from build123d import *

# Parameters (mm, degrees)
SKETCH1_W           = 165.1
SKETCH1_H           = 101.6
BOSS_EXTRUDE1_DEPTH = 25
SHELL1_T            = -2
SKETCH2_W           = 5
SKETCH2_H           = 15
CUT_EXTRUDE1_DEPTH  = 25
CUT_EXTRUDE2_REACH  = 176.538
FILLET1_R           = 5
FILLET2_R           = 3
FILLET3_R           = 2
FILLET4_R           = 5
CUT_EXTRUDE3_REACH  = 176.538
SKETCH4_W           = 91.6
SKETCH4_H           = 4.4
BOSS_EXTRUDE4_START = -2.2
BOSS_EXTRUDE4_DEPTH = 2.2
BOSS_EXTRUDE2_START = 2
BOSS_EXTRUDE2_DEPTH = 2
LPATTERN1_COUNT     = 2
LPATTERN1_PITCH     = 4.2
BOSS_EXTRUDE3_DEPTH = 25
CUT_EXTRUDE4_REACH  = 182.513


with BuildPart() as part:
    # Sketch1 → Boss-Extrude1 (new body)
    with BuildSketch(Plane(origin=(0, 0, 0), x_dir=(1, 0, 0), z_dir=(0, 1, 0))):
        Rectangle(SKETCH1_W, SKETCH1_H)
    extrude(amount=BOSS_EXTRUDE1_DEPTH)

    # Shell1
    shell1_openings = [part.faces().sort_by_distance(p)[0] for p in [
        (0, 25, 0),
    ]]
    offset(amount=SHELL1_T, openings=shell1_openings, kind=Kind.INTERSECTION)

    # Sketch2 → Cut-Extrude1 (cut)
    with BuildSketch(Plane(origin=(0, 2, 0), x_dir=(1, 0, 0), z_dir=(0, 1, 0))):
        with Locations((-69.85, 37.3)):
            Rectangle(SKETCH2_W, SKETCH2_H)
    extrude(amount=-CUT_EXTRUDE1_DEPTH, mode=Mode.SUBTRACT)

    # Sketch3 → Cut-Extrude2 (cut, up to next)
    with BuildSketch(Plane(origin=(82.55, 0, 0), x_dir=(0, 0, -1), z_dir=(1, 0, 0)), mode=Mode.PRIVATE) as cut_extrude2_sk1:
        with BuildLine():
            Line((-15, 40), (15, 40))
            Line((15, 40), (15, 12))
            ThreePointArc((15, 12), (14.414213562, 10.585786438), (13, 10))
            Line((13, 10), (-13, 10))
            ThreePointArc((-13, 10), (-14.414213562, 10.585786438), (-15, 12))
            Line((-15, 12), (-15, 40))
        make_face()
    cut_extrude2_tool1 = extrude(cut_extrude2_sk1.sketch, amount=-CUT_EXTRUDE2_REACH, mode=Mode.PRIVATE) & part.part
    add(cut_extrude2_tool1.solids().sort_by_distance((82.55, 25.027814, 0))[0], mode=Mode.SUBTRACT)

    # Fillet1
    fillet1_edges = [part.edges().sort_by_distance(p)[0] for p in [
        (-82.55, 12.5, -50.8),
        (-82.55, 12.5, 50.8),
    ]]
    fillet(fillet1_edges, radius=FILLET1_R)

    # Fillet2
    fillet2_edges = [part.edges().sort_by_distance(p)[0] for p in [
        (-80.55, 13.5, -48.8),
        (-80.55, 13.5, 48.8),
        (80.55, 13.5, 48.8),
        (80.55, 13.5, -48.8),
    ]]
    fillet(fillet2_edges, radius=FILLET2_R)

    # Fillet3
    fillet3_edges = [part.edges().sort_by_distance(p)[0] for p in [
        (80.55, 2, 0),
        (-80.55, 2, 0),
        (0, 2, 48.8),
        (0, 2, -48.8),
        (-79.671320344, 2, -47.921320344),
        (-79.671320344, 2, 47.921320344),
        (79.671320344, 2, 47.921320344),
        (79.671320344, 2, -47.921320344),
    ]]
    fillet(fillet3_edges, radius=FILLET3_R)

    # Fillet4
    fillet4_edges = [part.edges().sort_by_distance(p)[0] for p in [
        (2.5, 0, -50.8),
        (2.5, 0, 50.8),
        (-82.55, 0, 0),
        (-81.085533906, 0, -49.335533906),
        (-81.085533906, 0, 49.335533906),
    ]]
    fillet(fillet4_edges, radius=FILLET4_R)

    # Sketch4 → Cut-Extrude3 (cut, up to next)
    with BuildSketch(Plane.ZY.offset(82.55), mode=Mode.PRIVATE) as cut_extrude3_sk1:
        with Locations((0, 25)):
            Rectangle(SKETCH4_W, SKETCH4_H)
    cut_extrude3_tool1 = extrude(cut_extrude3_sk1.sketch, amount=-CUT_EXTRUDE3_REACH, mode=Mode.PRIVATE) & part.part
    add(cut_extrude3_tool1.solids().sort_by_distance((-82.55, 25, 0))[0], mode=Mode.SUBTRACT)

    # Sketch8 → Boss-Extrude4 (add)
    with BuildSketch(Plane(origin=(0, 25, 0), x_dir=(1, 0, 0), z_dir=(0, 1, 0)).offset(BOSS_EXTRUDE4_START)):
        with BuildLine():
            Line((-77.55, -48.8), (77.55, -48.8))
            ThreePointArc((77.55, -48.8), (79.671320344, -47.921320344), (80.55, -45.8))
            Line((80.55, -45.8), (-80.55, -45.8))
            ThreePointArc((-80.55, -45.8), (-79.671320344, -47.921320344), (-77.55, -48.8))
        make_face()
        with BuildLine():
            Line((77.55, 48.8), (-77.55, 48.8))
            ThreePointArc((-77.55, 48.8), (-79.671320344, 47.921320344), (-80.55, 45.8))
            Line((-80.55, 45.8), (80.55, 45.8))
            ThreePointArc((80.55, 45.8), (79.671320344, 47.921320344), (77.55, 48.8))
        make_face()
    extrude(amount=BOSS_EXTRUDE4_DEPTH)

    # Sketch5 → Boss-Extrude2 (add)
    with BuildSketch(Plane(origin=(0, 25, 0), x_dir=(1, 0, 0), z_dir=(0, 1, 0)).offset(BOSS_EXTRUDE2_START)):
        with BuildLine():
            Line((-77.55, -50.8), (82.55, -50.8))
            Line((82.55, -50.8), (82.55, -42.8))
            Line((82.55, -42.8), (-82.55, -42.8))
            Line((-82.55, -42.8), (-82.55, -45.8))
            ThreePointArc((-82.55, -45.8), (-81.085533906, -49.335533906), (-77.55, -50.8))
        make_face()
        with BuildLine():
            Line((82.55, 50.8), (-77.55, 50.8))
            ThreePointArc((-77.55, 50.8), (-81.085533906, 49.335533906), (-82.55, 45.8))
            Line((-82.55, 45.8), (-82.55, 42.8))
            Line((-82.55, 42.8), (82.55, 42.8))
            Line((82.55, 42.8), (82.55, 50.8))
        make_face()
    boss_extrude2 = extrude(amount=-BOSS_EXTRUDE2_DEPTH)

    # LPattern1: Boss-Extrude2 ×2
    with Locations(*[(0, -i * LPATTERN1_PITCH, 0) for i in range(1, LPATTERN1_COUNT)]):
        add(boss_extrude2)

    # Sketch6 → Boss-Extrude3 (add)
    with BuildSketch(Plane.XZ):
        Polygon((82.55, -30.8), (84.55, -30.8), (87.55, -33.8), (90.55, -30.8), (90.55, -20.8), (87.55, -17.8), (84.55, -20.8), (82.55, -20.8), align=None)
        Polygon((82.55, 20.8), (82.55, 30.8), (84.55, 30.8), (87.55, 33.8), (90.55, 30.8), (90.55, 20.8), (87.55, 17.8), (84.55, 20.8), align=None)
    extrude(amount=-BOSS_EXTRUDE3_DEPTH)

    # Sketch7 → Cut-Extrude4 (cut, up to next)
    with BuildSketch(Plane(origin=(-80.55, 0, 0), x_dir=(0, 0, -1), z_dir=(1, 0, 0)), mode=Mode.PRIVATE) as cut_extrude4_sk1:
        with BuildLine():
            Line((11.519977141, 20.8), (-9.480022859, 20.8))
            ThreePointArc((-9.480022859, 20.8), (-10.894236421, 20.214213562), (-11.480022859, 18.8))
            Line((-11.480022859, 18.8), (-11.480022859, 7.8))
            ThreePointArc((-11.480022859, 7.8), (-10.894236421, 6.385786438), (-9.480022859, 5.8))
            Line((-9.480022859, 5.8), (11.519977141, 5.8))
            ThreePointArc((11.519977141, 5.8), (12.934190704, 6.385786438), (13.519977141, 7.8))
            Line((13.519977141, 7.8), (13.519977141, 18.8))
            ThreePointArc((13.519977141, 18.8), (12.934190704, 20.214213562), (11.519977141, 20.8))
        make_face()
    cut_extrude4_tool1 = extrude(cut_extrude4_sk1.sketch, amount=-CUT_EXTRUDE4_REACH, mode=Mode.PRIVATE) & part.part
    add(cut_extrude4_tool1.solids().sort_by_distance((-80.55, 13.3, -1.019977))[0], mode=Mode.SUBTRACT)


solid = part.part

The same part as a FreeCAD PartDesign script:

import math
import FreeCAD as App
import Part
import Sketcher
from FreeCAD import Vector


def edges_at(feature, points):
    """Names of the edges that pass closest to the given points."""
    edges = feature.Shape.Edges
    near = lambda p: min(range(len(edges)), key=lambda i: edges[i].distToShape(Part.Vertex(*p))[0])
    return sorted({f"Edge{near(p) + 1}" for p in points})


def faces_at(feature, points):
    """Names of the faces that lie closest to the given points."""
    faces = feature.Shape.Faces
    near = lambda p: min(range(len(faces)), key=lambda i: faces[i].distToShape(Part.Vertex(*p))[0])
    return sorted({f"Face{near(p) + 1}" for p in points})


def add_polygon(sketch, points):
    """Adds a closed chain of lines whose ends are joined by coincident constraints."""
    first, n = sketch.GeometryCount, len(points)
    for a, b in zip(points, points[1:] + points[:1]):
        sketch.addGeometry(Part.LineSegment(App.Vector(*a, 0), App.Vector(*b, 0)), False)
    for i in range(n):
        sketch.addConstraint(Sketcher.Constraint("Coincident", first + i, 2, first + (i + 1) % n, 1))

doc = App.newDocument("Part")
body = doc.addObject("PartDesign::Body", "Body")

# Sketch on XZ plane
sketch1 = body.newObject("Sketcher::SketchObject", "Sketch")
sketch1.AttachmentSupport = (doc.getObject("XZ_Plane"), [""])
sketch1.MapMode = "FlatFace"
add_polygon(sketch1, [(-82.55, -50.8), (-82.55, 50.8), (82.55, 50.8), (82.55, -50.8)])  # lines 0-3
sketch1.addConstraint(Sketcher.Constraint("Vertical", 0))
sketch1.addConstraint(Sketcher.Constraint("Horizontal", 1))
sketch1.addConstraint(Sketcher.Constraint("Vertical", 2))
sketch1.addConstraint(Sketcher.Constraint("Horizontal", 3))
sketch1.addConstraint(Sketcher.Constraint("Symmetric", 0, 2, 2, 2, -1, 1))
sketch1.addConstraint(Sketcher.Constraint("DistanceX", 1, 1, 1, 2, 165.1))
sketch1.addConstraint(Sketcher.Constraint("DistanceY", 0, 1, 0, 2, 101.6))
pad1 = body.newObject("PartDesign::Pad", "Pad")
pad1.Profile = sketch1
pad1.Length = 25
pad1.Reversed = True
doc.recompute()

thickness = body.newObject("PartDesign::Thickness", "Thickness")
thickness.Base = (pad1, faces_at(pad1, [(0, 25, 0)]))
thickness.Value = 2
thickness.Reversed = True
thickness.Join = "Intersection"

# Sketch on XZ plane
sketch2 = body.newObject("Sketcher::SketchObject", "Sketch001")
sketch2.AttachmentSupport = (doc.getObject("XZ_Plane"), [""])
sketch2.MapMode = "FlatFace"
sketch2.AttachmentOffset = App.Placement(Vector(0, 0, -2), App.Rotation())
add_polygon(sketch2, [(-72.35, -44.8), (-72.35, -29.8), (-67.35, -29.8), (-67.35, -44.8)])  # lines 0-3
sketch2.addConstraint(Sketcher.Constraint("Vertical", 0))
sketch2.addConstraint(Sketcher.Constraint("Horizontal", 1))
sketch2.addConstraint(Sketcher.Constraint("Vertical", 2))
sketch2.addConstraint(Sketcher.Constraint("Horizontal", 3))
sketch2.addConstraint(Sketcher.Constraint("DistanceX", 1, 1, 1, 2, 5.0))
sketch2.addConstraint(Sketcher.Constraint("DistanceY", 0, 1, 0, 2, 15.0))
sketch2.addConstraint(Sketcher.Constraint("DistanceY", 0, 2, -1, 1, 29.8))
sketch2.addConstraint(Sketcher.Constraint("DistanceX", 0, 2, -1, 1, 72.35))
pocket1 = body.newObject("PartDesign::Pocket", "Pocket")
pocket1.Profile = sketch2
pocket1.Length = 25
pocket1.Reversed = True

# Sketch on YZ plane
sketch3 = body.newObject("Sketcher::SketchObject", "Sketch002")
sketch3.AttachmentSupport = (doc.getObject("YZ_Plane"), [""])
sketch3.MapMode = "FlatFace"
sketch3.AttachmentOffset = App.Placement(Vector(0, 0, 82.55), App.Rotation())
sketch3.addGeometry(Part.LineSegment(Vector(40, -15, 0), Vector(40, 15, 0)), False)
sketch3.addGeometry(Part.LineSegment(Vector(40, 15, 0), Vector(12, 15, 0)), False)
sketch3.addGeometry(Part.ArcOfCircle(Part.Circle(Vector(12, 13, 0), Vector(0, 0, 1), 2), math.radians(90), math.radians(180)), False)
sketch3.addGeometry(Part.LineSegment(Vector(10, 13, 0), Vector(10, -13, 0)), False)
sketch3.addGeometry(Part.ArcOfCircle(Part.Circle(Vector(12, -13, 0), Vector(0, 0, 1), 2), math.radians(-180), math.radians(-90)), False)
sketch3.addGeometry(Part.LineSegment(Vector(12, -15, 0), Vector(40, -15, 0)), False)
sketch3.addConstraint(Sketcher.Constraint("Coincident", 0, 2, 1, 1))
sketch3.addConstraint(Sketcher.Constraint("Tangent", 1, 2, 2, 1))
sketch3.addConstraint(Sketcher.Constraint("Tangent", 2, 2, 3, 1))
sketch3.addConstraint(Sketcher.Constraint("Tangent", 3, 2, 4, 1))
sketch3.addConstraint(Sketcher.Constraint("Tangent", 4, 2, 5, 1))
sketch3.addConstraint(Sketcher.Constraint("Coincident", 5, 2, 0, 1))
sketch3.addConstraint(Sketcher.Constraint("Vertical", 0))
sketch3.addConstraint(Sketcher.Constraint("Horizontal", 1))
sketch3.addConstraint(Sketcher.Constraint("Vertical", 3))
sketch3.addConstraint(Sketcher.Constraint("Horizontal", 5))
sketch3.addConstraint(Sketcher.Constraint("Equal", 2, 4))
sketch3.addConstraint(Sketcher.Constraint("Radius", 2, 2.0))
sketch3.addConstraint(Sketcher.Constraint("DistanceX", 1, 2, 1, 1, 28.0))
sketch3.addConstraint(Sketcher.Constraint("DistanceY", 0, 1, 0, 2, 30.0))
sketch3.addConstraint(Sketcher.Constraint("DistanceX", -1, 1, 2, 3, 12.0))
sketch3.addConstraint(Sketcher.Constraint("DistanceY", -1, 1, 2, 3, 13.0))
pocket2 = body.newObject("PartDesign::Pocket", "Pocket001")
pocket2.Profile = sketch3
pocket2.Length = 2
doc.recompute()

fillet = body.newObject("PartDesign::Fillet", "Fillet")
fillet.Base = (pocket2, edges_at(pocket2, [(-82.55, 12.5, -50.8), (-82.55, 12.5, 50.8)]))
fillet.Radius = 5
doc.recompute()

fillet2 = body.newObject("PartDesign::Fillet", "Fillet001")
fillet2.Base = (fillet, edges_at(fillet, [
    (-80.55, 13.5, -48.8),
    (-80.55, 13.5, 48.8),
    (80.55, 13.5, 48.8),
    (80.55, 13.5, -48.8),
]))
fillet2.Radius = 3
doc.recompute()

fillet3 = body.newObject("PartDesign::Fillet", "Fillet002")
fillet3.Base = (fillet2, edges_at(fillet2, [
    (80.55, 2, 0),
    (-80.55, 2, 0),
    (0, 2, 48.8),
    (0, 2, -48.8),
    (-79.671, 2, -47.921),
    (-79.671, 2, 47.921),
    (79.671, 2, 47.921),
    (79.671, 2, -47.921),
]))
fillet3.Radius = 2
doc.recompute()

fillet4 = body.newObject("PartDesign::Fillet", "Fillet003")
fillet4.Base = (fillet3, edges_at(fillet3, [
    (2.5, 0, -50.8),
    (2.5, 0, 50.8),
    (-82.55, 0, 0),
    (-81.086, 0, -49.336),
    (-81.086, 0, 49.336),
]))
fillet4.Radius = 5

# Sketch on YZ plane
sketch4 = body.newObject("Sketcher::SketchObject", "Sketch003")
sketch4.AttachmentSupport = (doc.getObject("YZ_Plane"), [""])
sketch4.MapMode = "FlatFace"
sketch4.AttachmentOffset = App.Placement(Vector(0, 0, -82.55), App.Rotation())
add_polygon(sketch4, [(27.2, -45.8), (22.8, -45.8), (22.8, 45.8), (27.2, 45.8)])  # lines 0-3
sketch4.addConstraint(Sketcher.Constraint("Horizontal", 0))
sketch4.addConstraint(Sketcher.Constraint("Vertical", 1))
sketch4.addConstraint(Sketcher.Constraint("Horizontal", 2))
sketch4.addConstraint(Sketcher.Constraint("Vertical", 3))
sketch4.addConstraint(Sketcher.Constraint("DistanceX", 0, 2, 0, 1, 4.4))
sketch4.addConstraint(Sketcher.Constraint("DistanceY", 1, 1, 1, 2, 91.6))
sketch4.addConstraint(Sketcher.Constraint("DistanceX", -1, 1, 0, 2, 22.8))
sketch4.addConstraint(Sketcher.Constraint("DistanceY", 0, 2, -1, 1, 45.8))
pocket3 = body.newObject("PartDesign::Pocket", "Pocket002")
pocket3.Profile = sketch4
pocket3.Type = "UpToFirst"
pocket3.Reversed = True

# Sketch on XZ plane
sketch5 = body.newObject("Sketcher::SketchObject", "Sketch004")
sketch5.AttachmentSupport = (doc.getObject("XZ_Plane"), [""])
sketch5.MapMode = "FlatFace"
sketch5.AttachmentOffset = App.Placement(Vector(0, 0, -22.8), App.Rotation())
sketch5.addGeometry(Part.LineSegment(Vector(-77.55, 48.8, 0), Vector(77.55, 48.8, 0)), False)
sketch5.addGeometry(Part.ArcOfCircle(Part.Circle(Vector(77.55, 45.8, 0), Vector(0, 0, 1), 3), math.radians(0), math.radians(90)), False)
sketch5.addGeometry(Part.LineSegment(Vector(80.55, 45.8, 0), Vector(-80.55, 45.8, 0)), False)
sketch5.addGeometry(Part.ArcOfCircle(Part.Circle(Vector(-77.55, 45.8, 0), Vector(0, 0, 1), 3), math.radians(90), math.radians(180)), False)
sketch5.addGeometry(Part.LineSegment(Vector(77.55, -48.8, 0), Vector(-77.55, -48.8, 0)), False)
sketch5.addGeometry(Part.ArcOfCircle(Part.Circle(Vector(-77.55, -45.8, 0), Vector(0, 0, 1), 3), math.radians(180), math.radians(270)), False)
sketch5.addGeometry(Part.LineSegment(Vector(-80.55, -45.8, 0), Vector(80.55, -45.8, 0)), False)
sketch5.addGeometry(Part.ArcOfCircle(Part.Circle(Vector(77.55, -45.8, 0), Vector(0, 0, 1), 3), math.radians(-90), math.radians(0)), False)
sketch5.addConstraint(Sketcher.Constraint("Tangent", 0, 2, 1, 2))
sketch5.addConstraint(Sketcher.Constraint("Coincident", 1, 1, 2, 1))
sketch5.addConstraint(Sketcher.Constraint("Coincident", 2, 2, 3, 2))
sketch5.addConstraint(Sketcher.Constraint("Tangent", 3, 1, 0, 1))
sketch5.addConstraint(Sketcher.Constraint("Tangent", 4, 2, 5, 2))
sketch5.addConstraint(Sketcher.Constraint("Coincident", 5, 1, 6, 1))
sketch5.addConstraint(Sketcher.Constraint("Coincident", 6, 2, 7, 2))
sketch5.addConstraint(Sketcher.Constraint("Tangent", 7, 1, 4, 1))
sketch5.addConstraint(Sketcher.Constraint("Horizontal", 0))
sketch5.addConstraint(Sketcher.Constraint("Horizontal", 2))
sketch5.addConstraint(Sketcher.Constraint("Horizontal", 4))
sketch5.addConstraint(Sketcher.Constraint("Horizontal", 6))
sketch5.addConstraint(Sketcher.Constraint("Equal", 1, 3))
sketch5.addConstraint(Sketcher.Constraint("Equal", 3, 5))
sketch5.addConstraint(Sketcher.Constraint("Equal", 5, 7))
sketch5.addConstraint(Sketcher.Constraint("Symmetric", 1, 3, 5, 3, -1, 1))
sketch5.addConstraint(Sketcher.Constraint("Symmetric", 2, 2, 6, 2, -1, 1))
sketch5.addConstraint(Sketcher.Constraint("Horizontal", 3, 3, 1, 1))
sketch5.addConstraint(Sketcher.Constraint("Vertical", 3, 3, 5, 3))
sketch5.addConstraint(Sketcher.Constraint("Radius", 1, 3.0))
sketch5.addConstraint(Sketcher.Constraint("DistanceX", 0, 1, 0, 2, 155.1))
sketch5.addConstraint(Sketcher.Constraint("DistanceY", -1, 1, 1, 3, 45.8))
pad2 = body.newObject("PartDesign::Pad", "Pad001")
pad2.Profile = sketch5
pad2.Length = 2.2
pad2.Reversed = True

# Sketch on XZ plane
sketch6 = body.newObject("Sketcher::SketchObject", "Sketch005")
sketch6.AttachmentSupport = (doc.getObject("XZ_Plane"), [""])
sketch6.MapMode = "FlatFace"
sketch6.AttachmentOffset = App.Placement(Vector(0, 0, -27), App.Rotation())
sketch6.addGeometry(Part.LineSegment(Vector(-77.55, 50.8, 0), Vector(82.55, 50.8, 0)), False)
sketch6.addGeometry(Part.LineSegment(Vector(82.55, 50.8, 0), Vector(82.55, 42.8, 0)), False)
sketch6.addGeometry(Part.LineSegment(Vector(82.55, 42.8, 0), Vector(-82.55, 42.8, 0)), False)
sketch6.addGeometry(Part.LineSegment(Vector(-82.55, 42.8, 0), Vector(-82.55, 45.8, 0)), False)
sketch6.addGeometry(Part.ArcOfCircle(Part.Circle(Vector(-77.55, 45.8, 0), Vector(0, 0, 1), 5), math.radians(90), math.radians(180)), False)
sketch6.addGeometry(Part.LineSegment(Vector(82.55, -50.8, 0), Vector(-77.55, -50.8, 0)), False)
sketch6.addGeometry(Part.ArcOfCircle(Part.Circle(Vector(-77.55, -45.8, 0), Vector(0, 0, 1), 5), math.radians(180), math.radians(270)), False)
sketch6.addGeometry(Part.LineSegment(Vector(-82.55, -45.8, 0), Vector(-82.55, -42.8, 0)), False)
sketch6.addGeometry(Part.LineSegment(Vector(-82.55, -42.8, 0), Vector(82.55, -42.8, 0)), False)
sketch6.addGeometry(Part.LineSegment(Vector(82.55, -42.8, 0), Vector(82.55, -50.8, 0)), False)
sketch6.addConstraint(Sketcher.Constraint("Coincident", 0, 2, 1, 1))
sketch6.addConstraint(Sketcher.Constraint("Coincident", 1, 2, 2, 1))
sketch6.addConstraint(Sketcher.Constraint("Coincident", 2, 2, 3, 1))
sketch6.addConstraint(Sketcher.Constraint("Tangent", 3, 2, 4, 2))
sketch6.addConstraint(Sketcher.Constraint("Tangent", 4, 1, 0, 1))
sketch6.addConstraint(Sketcher.Constraint("Tangent", 5, 2, 6, 2))
sketch6.addConstraint(Sketcher.Constraint("Tangent", 6, 1, 7, 1))
sketch6.addConstraint(Sketcher.Constraint("Coincident", 7, 2, 8, 1))
sketch6.addConstraint(Sketcher.Constraint("Coincident", 8, 2, 9, 1))
sketch6.addConstraint(Sketcher.Constraint("Coincident", 9, 2, 5, 1))
sketch6.addConstraint(Sketcher.Constraint("Horizontal", 0))
sketch6.addConstraint(Sketcher.Constraint("Vertical", 1))
sketch6.addConstraint(Sketcher.Constraint("Horizontal", 2))
sketch6.addConstraint(Sketcher.Constraint("Vertical", 3))
sketch6.addConstraint(Sketcher.Constraint("Horizontal", 5))
sketch6.addConstraint(Sketcher.Constraint("Vertical", 7))
sketch6.addConstraint(Sketcher.Constraint("Horizontal", 8))
sketch6.addConstraint(Sketcher.Constraint("Vertical", 9))
sketch6.addConstraint(Sketcher.Constraint("Equal", 4, 6))
sketch6.addConstraint(Sketcher.Constraint("Symmetric", 1, 2, 7, 2, -1, 1))
sketch6.addConstraint(Sketcher.Constraint("Symmetric", 4, 3, 6, 3, -1))
sketch6.addConstraint(Sketcher.Constraint("Vertical", 1, 2, 8, 2))
sketch6.addConstraint(Sketcher.Constraint("Radius", 4, 5.0))
sketch6.addConstraint(Sketcher.Constraint("DistanceY", 1, 2, 1, 1, 8.0))
sketch6.addConstraint(Sketcher.Constraint("DistanceX", 0, 1, 0, 2, 160.1))
sketch6.addConstraint(Sketcher.Constraint("DistanceY", -1, 1, 4, 3, 45.8))
pad3 = body.newObject("PartDesign::Pad", "Pad002")
pad3.Profile = sketch6
pad3.Length = 2
doc.recompute()

linearpattern = body.newObject("PartDesign::LinearPattern", "LinearPattern")
linearpattern.Originals = [pad3]
linearpattern.Direction = (doc.getObject("Y_Axis"), [""])
linearpattern.Mode = "offset"
linearpattern.Offset = 4.2
linearpattern.Occurrences = 2
linearpattern.Reversed = True
body.Tip = linearpattern

# Sketch on XZ plane
sketch7 = body.newObject("Sketcher::SketchObject", "Sketch006")
sketch7.AttachmentSupport = (doc.getObject("XZ_Plane"), [""])
sketch7.MapMode = "FlatFace"
add_polygon(sketch7, [(82.55, -30.8), (84.55, -30.8), (87.55, -33.8), (90.55, -30.8), (90.55, -20.8), (87.55, -17.8), (84.55, -20.8), (82.55, -20.8)])  # lines 0-7
add_polygon(sketch7, [(82.55, 30.8), (82.55, 20.8), (84.55, 20.8), (87.55, 17.8), (90.55, 20.8), (90.55, 30.8), (87.55, 33.8), (84.55, 30.8)])  # lines 8-15
sketch7.addConstraint(Sketcher.Constraint("Horizontal", 0))
sketch7.addConstraint(Sketcher.Constraint("Vertical", 3))
sketch7.addConstraint(Sketcher.Constraint("Horizontal", 6))
sketch7.addConstraint(Sketcher.Constraint("Vertical", 7))
sketch7.addConstraint(Sketcher.Constraint("Vertical", 8))
sketch7.addConstraint(Sketcher.Constraint("Horizontal", 9))
sketch7.addConstraint(Sketcher.Constraint("Vertical", 12))
sketch7.addConstraint(Sketcher.Constraint("Horizontal", 15))
sketch7.addConstraint(Sketcher.Constraint("Symmetric", 6, 2, 8, 2, -1))
sketch7.addConstraint(Sketcher.Constraint("Symmetric", 4, 2, 10, 2, -1))
sketch7.addConstraint(Sketcher.Constraint("Symmetric", 3, 2, 11, 2, -1))
sketch7.addConstraint(Sketcher.Constraint("Symmetric", 1, 2, 13, 2, -1))
sketch7.addConstraint(Sketcher.Constraint("Symmetric", 0, 2, 14, 2, -1))
sketch7.addConstraint(Sketcher.Constraint("Perpendicular", 1, 2))
sketch7.addConstraint(Sketcher.Constraint("Perpendicular", 2, 4))
sketch7.addConstraint(Sketcher.Constraint("Perpendicular", 4, 5))
sketch7.addConstraint(Sketcher.Constraint("Perpendicular", 5, 10))
sketch7.addConstraint(Sketcher.Constraint("Perpendicular", 10, 11))
sketch7.addConstraint(Sketcher.Constraint("Perpendicular", 11, 13))
sketch7.addConstraint(Sketcher.Constraint("Horizontal", 0, 2, 2, 2))
sketch7.addConstraint(Sketcher.Constraint("Horizontal", 3, 2, 5, 2))
sketch7.addConstraint(Sketcher.Constraint("Vertical", 1, 2, 4, 2))
sketch7.addConstraint(Sketcher.Constraint("DistanceX", 0, 1, 0, 2, 2.0))
sketch7.addConstraint(Sketcher.Constraint("DistanceY", 3, 1, 3, 2, 10.0))
sketch7.addConstraint(Sketcher.Constraint("DistanceX", 0, 2, 1, 2, 3.0))
sketch7.addConstraint(Sketcher.Constraint("DistanceY", 0, 2, -1, 1, 30.8))
sketch7.addConstraint(Sketcher.Constraint("DistanceX", -1, 1, 0, 2, 84.55))
pad4 = body.newObject("PartDesign::Pad", "Pad003")
pad4.Profile = sketch7
pad4.Length = 25
pad4.Reversed = True

# Sketch on YZ plane
sketch8 = body.newObject("Sketcher::SketchObject", "Sketch007")
sketch8.AttachmentSupport = (doc.getObject("YZ_Plane"), [""])
sketch8.MapMode = "FlatFace"
sketch8.AttachmentOffset = App.Placement(Vector(0, 0, -80.55), App.Rotation())
sketch8.addGeometry(Part.LineSegment(Vector(20.8, -11.519977, 0), Vector(20.8, 9.480023, 0)), False)
sketch8.addGeometry(Part.ArcOfCircle(Part.Circle(Vector(18.8, 9.480023, 0), Vector(0, 0, 1), 2), math.radians(0), math.radians(90)), False)
sketch8.addGeometry(Part.LineSegment(Vector(18.8, 11.480023, 0), Vector(7.8, 11.480023, 0)), False)
sketch8.addGeometry(Part.ArcOfCircle(Part.Circle(Vector(7.8, 9.480023, 0), Vector(0, 0, 1), 2), math.radians(90), math.radians(180)), False)
sketch8.addGeometry(Part.LineSegment(Vector(5.8, 9.480023, 0), Vector(5.8, -11.519977, 0)), False)
sketch8.addGeometry(Part.ArcOfCircle(Part.Circle(Vector(7.8, -11.519977, 0), Vector(0, 0, 1), 2), math.radians(180), math.radians(270)), False)
sketch8.addGeometry(Part.LineSegment(Vector(7.8, -13.519977, 0), Vector(18.8, -13.519977, 0)), False)
sketch8.addGeometry(Part.ArcOfCircle(Part.Circle(Vector(18.8, -11.519977, 0), Vector(0, 0, 1), 2), math.radians(-90), math.radians(0)), False)
sketch8.addConstraint(Sketcher.Constraint("Tangent", 0, 2, 1, 1))
sketch8.addConstraint(Sketcher.Constraint("Tangent", 1, 2, 2, 1))
sketch8.addConstraint(Sketcher.Constraint("Tangent", 2, 2, 3, 1))
sketch8.addConstraint(Sketcher.Constraint("Tangent", 3, 2, 4, 1))
sketch8.addConstraint(Sketcher.Constraint("Tangent", 4, 2, 5, 1))
sketch8.addConstraint(Sketcher.Constraint("Tangent", 5, 2, 6, 1))
sketch8.addConstraint(Sketcher.Constraint("Tangent", 6, 2, 7, 1))
sketch8.addConstraint(Sketcher.Constraint("Tangent", 7, 2, 0, 1))
sketch8.addConstraint(Sketcher.Constraint("Vertical", 0))
sketch8.addConstraint(Sketcher.Constraint("Horizontal", 2))
sketch8.addConstraint(Sketcher.Constraint("Vertical", 4))
sketch8.addConstraint(Sketcher.Constraint("Horizontal", 6))
sketch8.addConstraint(Sketcher.Constraint("Equal", 1, 3))
sketch8.addConstraint(Sketcher.Constraint("Equal", 3, 5))
sketch8.addConstraint(Sketcher.Constraint("Equal", 5, 7))
sketch8.addConstraint(Sketcher.Constraint("Radius", 1, 2.0))
sketch8.addConstraint(Sketcher.Constraint("DistanceX", 2, 2, 2, 1, 11.0))
sketch8.addConstraint(Sketcher.Constraint("DistanceY", 0, 1, 0, 2, 21.0))
sketch8.addConstraint(Sketcher.Constraint("DistanceX", -1, 1, 1, 3, 18.8))
sketch8.addConstraint(Sketcher.Constraint("DistanceY", -1, 1, 1, 3, 9.480023))
pocket4 = body.newObject("PartDesign::Pocket", "Pocket003")
pocket4.Profile = sketch8
pocket4.Type = "UpToFirst"

doc.recompute()
